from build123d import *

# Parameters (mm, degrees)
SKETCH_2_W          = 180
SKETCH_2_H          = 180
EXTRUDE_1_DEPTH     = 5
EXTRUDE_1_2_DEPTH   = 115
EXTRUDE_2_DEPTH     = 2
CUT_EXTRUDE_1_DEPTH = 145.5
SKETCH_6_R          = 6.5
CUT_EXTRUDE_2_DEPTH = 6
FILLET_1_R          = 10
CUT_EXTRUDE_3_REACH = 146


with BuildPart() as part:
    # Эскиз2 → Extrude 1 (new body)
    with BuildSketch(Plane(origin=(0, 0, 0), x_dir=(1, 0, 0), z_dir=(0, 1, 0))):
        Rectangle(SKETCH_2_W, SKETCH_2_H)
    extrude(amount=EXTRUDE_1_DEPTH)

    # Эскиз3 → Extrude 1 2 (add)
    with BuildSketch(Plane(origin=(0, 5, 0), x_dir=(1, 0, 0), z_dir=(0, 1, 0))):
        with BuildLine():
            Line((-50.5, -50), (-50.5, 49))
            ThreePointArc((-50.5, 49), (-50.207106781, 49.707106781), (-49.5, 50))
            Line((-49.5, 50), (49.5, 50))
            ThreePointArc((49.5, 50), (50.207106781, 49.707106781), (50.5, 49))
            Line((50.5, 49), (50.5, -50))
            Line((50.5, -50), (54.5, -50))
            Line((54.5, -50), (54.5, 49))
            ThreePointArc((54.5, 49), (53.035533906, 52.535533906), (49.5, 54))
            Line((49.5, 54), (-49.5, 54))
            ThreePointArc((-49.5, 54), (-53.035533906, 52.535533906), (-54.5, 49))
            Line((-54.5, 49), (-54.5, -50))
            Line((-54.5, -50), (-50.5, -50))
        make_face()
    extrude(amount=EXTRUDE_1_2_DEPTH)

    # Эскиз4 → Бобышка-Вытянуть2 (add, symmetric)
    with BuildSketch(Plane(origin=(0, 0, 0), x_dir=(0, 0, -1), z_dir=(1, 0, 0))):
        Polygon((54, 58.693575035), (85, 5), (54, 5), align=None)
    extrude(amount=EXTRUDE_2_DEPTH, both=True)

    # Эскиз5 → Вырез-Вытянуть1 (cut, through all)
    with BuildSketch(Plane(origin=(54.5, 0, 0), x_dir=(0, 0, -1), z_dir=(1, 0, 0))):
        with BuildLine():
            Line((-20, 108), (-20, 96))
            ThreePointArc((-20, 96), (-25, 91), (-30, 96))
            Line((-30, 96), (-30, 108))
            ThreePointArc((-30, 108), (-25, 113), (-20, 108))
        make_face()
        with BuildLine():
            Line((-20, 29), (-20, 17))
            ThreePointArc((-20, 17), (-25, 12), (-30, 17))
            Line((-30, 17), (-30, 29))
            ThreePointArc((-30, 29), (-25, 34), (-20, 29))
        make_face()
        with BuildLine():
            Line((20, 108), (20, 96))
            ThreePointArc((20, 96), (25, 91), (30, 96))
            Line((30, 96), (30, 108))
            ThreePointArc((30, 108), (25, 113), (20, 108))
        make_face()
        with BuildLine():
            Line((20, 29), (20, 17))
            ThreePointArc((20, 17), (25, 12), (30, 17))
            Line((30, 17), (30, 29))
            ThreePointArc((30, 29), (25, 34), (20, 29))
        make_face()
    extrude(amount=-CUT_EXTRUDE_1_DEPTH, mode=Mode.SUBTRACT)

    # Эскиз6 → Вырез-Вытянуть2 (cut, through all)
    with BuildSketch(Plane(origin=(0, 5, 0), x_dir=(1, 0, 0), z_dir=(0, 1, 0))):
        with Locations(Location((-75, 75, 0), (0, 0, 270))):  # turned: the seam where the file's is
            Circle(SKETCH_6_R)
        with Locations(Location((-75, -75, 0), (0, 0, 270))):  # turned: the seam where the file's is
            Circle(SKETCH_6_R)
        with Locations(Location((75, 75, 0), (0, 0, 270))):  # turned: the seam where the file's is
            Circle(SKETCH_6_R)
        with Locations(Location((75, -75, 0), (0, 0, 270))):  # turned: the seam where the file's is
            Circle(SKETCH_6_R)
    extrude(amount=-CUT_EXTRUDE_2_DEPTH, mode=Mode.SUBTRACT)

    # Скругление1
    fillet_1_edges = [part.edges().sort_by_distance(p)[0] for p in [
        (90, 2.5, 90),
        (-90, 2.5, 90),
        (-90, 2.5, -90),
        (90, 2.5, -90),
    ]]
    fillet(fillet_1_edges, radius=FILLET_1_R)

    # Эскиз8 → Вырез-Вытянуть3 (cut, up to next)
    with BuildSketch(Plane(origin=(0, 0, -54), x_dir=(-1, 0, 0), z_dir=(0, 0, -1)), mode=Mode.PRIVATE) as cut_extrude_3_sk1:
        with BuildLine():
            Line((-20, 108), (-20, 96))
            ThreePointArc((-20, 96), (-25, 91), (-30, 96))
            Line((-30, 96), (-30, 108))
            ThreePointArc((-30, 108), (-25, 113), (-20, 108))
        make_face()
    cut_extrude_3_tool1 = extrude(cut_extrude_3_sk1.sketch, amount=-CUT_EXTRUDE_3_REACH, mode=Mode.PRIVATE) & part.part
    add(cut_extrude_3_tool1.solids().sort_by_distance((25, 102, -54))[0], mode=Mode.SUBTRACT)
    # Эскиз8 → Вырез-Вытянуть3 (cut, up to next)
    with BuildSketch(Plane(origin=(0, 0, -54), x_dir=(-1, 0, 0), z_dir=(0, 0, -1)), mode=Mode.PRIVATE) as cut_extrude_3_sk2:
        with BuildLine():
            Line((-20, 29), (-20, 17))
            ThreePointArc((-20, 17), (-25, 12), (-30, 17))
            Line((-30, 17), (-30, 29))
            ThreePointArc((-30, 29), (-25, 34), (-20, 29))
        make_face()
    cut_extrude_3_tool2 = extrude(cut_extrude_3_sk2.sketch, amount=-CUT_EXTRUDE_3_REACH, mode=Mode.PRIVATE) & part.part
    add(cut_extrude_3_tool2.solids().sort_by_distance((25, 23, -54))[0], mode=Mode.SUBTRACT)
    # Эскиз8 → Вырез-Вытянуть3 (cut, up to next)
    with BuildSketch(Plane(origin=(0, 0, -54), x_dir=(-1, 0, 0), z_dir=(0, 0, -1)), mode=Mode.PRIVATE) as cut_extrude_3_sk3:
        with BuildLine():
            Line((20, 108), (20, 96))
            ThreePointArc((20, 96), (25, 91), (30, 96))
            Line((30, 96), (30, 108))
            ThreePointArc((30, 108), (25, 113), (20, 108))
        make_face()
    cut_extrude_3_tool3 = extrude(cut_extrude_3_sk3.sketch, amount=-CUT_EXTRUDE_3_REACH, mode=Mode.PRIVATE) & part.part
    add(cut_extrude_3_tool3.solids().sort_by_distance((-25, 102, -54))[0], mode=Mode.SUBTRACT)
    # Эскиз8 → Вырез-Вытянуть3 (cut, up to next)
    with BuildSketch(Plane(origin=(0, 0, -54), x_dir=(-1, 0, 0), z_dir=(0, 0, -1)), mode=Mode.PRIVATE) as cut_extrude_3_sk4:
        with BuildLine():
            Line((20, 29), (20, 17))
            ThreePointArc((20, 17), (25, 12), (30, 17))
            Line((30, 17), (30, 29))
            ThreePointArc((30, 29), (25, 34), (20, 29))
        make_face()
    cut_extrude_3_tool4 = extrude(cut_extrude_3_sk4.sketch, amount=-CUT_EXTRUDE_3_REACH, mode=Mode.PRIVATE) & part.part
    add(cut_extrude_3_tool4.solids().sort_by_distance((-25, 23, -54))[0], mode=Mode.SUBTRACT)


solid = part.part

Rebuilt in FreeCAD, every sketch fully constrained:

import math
import FreeCAD as App
import Part
import Sketcher
Q = App.Units.Quantity


def edges_at(feature, points):
    """Names of the edges that pass closest to the given points."""
    edges = feature.Shape.Edges
    near = lambda p: min(range(len(edges)), key=lambda i: edges[i].distToShape(Part.Vertex(*p))[0])
    return sorted({f"Edge{near(p) + 1}" for p in points})

doc = App.newDocument("Part")
body = doc.addObject("PartDesign::Body", "Body")

# Sketch on XZ plane
sketch1 = body.newObject("Sketcher::SketchObject", "Sketch")
sketch1.AttachmentSupport = (doc.getObject("XZ_Plane"), [""])
sketch1.MapMode = "FlatFace"
sketch1.addGeometry([
    Part.LineSegment(App.Vector(-90, -90, 0), App.Vector(-90, 90, 0)),
    Part.LineSegment(App.Vector(-90, 90, 0), App.Vector(90, 90, 0)),
    Part.LineSegment(App.Vector(90, 90, 0), App.Vector(90, -90, 0)),
    Part.LineSegment(App.Vector(90, -90, 0), App.Vector(-90, -90, 0)),
], False)
sketch1.addConstraint([
    Sketcher.Constraint("Coincident", 0, 2, 1, 1),
    Sketcher.Constraint("Coincident", 1, 2, 2, 1),
    Sketcher.Constraint("Coincident", 2, 2, 3, 1),
    Sketcher.Constraint("Coincident", 3, 2, 0, 1),
    Sketcher.Constraint("Vertical", 0),
    Sketcher.Constraint("Horizontal", 1),
    Sketcher.Constraint("Vertical", 2),
    Sketcher.Constraint("Horizontal", 3),
    Sketcher.Constraint("Symmetric", 0, 2, 2, 2, -1, 1),
    Sketcher.Constraint("Equal", 3, 0),
    Sketcher.Constraint("DistanceX", 1, 1, 1, 2, 180.0),
])
pad1 = body.newObject("PartDesign::Pad", "Pad")
pad1.Profile = sketch1
pad1.Length = 5
pad1.Reversed = True

# Sketch on XZ plane
sketch2 = body.newObject("Sketcher::SketchObject", "Sketch001")
sketch2.AttachmentSupport = (doc.getObject("XZ_Plane"), [""])
sketch2.MapMode = "FlatFace"
sketch2.AttachmentOffset = App.Placement(App.Vector(0, 0, -5), App.Rotation())
sketch2.addGeometry([
    Part.LineSegment(App.Vector(-50.5, 50, 0), App.Vector(-50.5, -49, 0)),  # 0
    Part.ArcOfCircle(Part.Circle(App.Vector(-49.5, -49, 0), App.Vector(0, 0, 1), 1), math.radians(-180), math.radians(-90)),  # 1
    Part.LineSegment(App.Vector(-49.5, -50, 0), App.Vector(49.5, -50, 0)),  # 2
    Part.ArcOfCircle(Part.Circle(App.Vector(49.5, -49, 0), App.Vector(0, 0, 1), 1), math.radians(-90), math.radians(0)),  # 3
    Part.LineSegment(App.Vector(50.5, -49, 0), App.Vector(50.5, 50, 0)),  # 4
    Part.LineSegment(App.Vector(50.5, 50, 0), App.Vector(54.5, 50, 0)),  # 5
    Part.LineSegment(App.Vector(54.5, 50, 0), App.Vector(54.5, -49, 0)),  # 6
    Part.ArcOfCircle(Part.Circle(App.Vector(49.5, -49, 0), App.Vector(0, 0, 1), 5), math.radians(-90), math.radians(0)),  # 7
    Part.LineSegment(App.Vector(49.5, -54, 0), App.Vector(-49.5, -54, 0)),  # 8
    Part.ArcOfCircle(Part.Circle(App.Vector(-49.5, -49, 0), App.Vector(0, 0, 1), 5), math.radians(180), math.radians(270)),  # 9
    Part.LineSegment(App.Vector(-54.5, -49, 0), App.Vector(-54.5, 50, 0)),  # 10
    Part.LineSegment(App.Vector(-54.5, 50, 0), App.Vector(-50.5, 50, 0)),  # 11
], False)
sketch2.addConstraint([
    Sketcher.Constraint("Tangent", 0, 2, 1, 1),
    Sketcher.Constraint("Tangent", 1, 2, 2, 1),
    Sketcher.Constraint("Tangent", 2, 2, 3, 1),
    Sketcher.Constraint("Tangent", 3, 2, 4, 1),
    Sketcher.Constraint("Coincident", 4, 2, 5, 1),
    Sketcher.Constraint("Coincident", 5, 2, 6, 1),
    Sketcher.Constraint("Tangent", 6, 2, 7, 2),
    Sketcher.Constraint("Tangent", 7, 1, 8, 1),
    Sketcher.Constraint("Tangent", 8, 2, 9, 2),
    Sketcher.Constraint("Tangent", 9, 1, 10, 1),
    Sketcher.Constraint("Coincident", 10, 2, 11, 1),
    Sketcher.Constraint("Coincident", 11, 2, 0, 1),
    Sketcher.Constraint("Vertical", 0),
    Sketcher.Constraint("Horizontal", 2),
    Sketcher.Constraint("Vertical", 4),
    Sketcher.Constraint("Horizontal", 5),
    Sketcher.Constraint("Vertical", 6),
    Sketcher.Constraint("Horizontal", 8),
    Sketcher.Constraint("Vertical", 10),
    Sketcher.Constraint("Horizontal", 11),
    Sketcher.Constraint("Coincident", 7, 3, 3, 3),
    Sketcher.Constraint("Coincident", 9, 3, 1, 3),
    Sketcher.Constraint("Equal", 1, 3),
    Sketcher.Constraint("Symmetric", 5, 2, 10, 2, -2),
    Sketcher.Constraint("Equal", 8, 0),
    Sketcher.Constraint("Radius", 1, 1.0),
    Sketcher.Constraint("Radius", 7, 5.0),
    Sketcher.Constraint("DistanceX", 2, 1, 2, 2, 99.0),
    Sketcher.Constraint("DistanceY", 1, 3, -1, 1, 49.0),
])
pad2 = body.newObject("PartDesign::Pad", "Pad001")
pad2.Profile = sketch2
pad2.Length = 115
pad2.Reversed = True

# Sketch on YZ plane
sketch3 = body.newObject("Sketcher::SketchObject", "Sketch002")
sketch3.AttachmentSupport = (doc.getObject("YZ_Plane"), [""])
sketch3.MapMode = "FlatFace"
sketch3.addGeometry([
    Part.LineSegment(App.Vector(5, -85, 0), App.Vector(59, -54, 0)),
    Part.LineSegment(App.Vector(59, -54, 0), App.Vector(5, -54, 0)),
    Part.LineSegment(App.Vector(5, -54, 0), App.Vector(5, -85, 0)),
], False)
sketch3.addConstraint([
    Sketcher.Constraint("Coincident", 0, 2, 1, 1),
    Sketcher.Constraint("Coincident", 1, 2, 2, 1),
    Sketcher.Constraint("Coincident", 2, 2, 0, 1),
    Sketcher.Constraint("Horizontal", 1),
    Sketcher.Constraint("Vertical", 2),
    Sketcher.Constraint("DistanceY", 2, 2, 2, 1, 31.0),
    Sketcher.Constraint("Angle", 0, Q("30 deg")),
    Sketcher.Constraint("DistanceY", 0, 2, -1, 1, 54.0),
    Sketcher.Constraint("DistanceX", -1, 1, 1, 2, 5.0),
])
pad3 = body.newObject("PartDesign::Pad", "Pad002")
pad3.Profile = sketch3
pad3.Length = 4
pad3.Midplane = True

# Sketch on YZ plane
sketch4 = body.newObject("Sketcher::SketchObject", "Sketch003")
sketch4.AttachmentSupport = (doc.getObject("YZ_Plane"), [""])
sketch4.MapMode = "FlatFace"
sketch4.AttachmentOffset = App.Placement(App.Vector(0, 0, 54.5), App.Rotation())
sketch4.addGeometry([
    Part.LineSegment(App.Vector(96, 20, 0), App.Vector(108, 20, 0)),  # 0
    Part.ArcOfCircle(Part.Circle(App.Vector(108, 25, 0), App.Vector(0, 0, 1), 5), math.radians(-90), math.radians(90)),  # 1
    Part.LineSegment(App.Vector(108, 30, 0), App.Vector(96, 30, 0)),  # 2
    Part.ArcOfCircle(Part.Circle(App.Vector(96, 25, 0), App.Vector(0, 0, 1), 5), math.radians(90), math.radians(270)),  # 3
    Part.LineSegment(App.Vector(17, 20, 0), App.Vector(29, 20, 0)),  # 4
    Part.ArcOfCircle(Part.Circle(App.Vector(29, 25, 0), App.Vector(0, 0, 1), 5), math.radians(-90), math.radians(90)),  # 5
    Part.LineSegment(App.Vector(29, 30, 0), App.Vector(17, 30, 0)),  # 6
    Part.ArcOfCircle(Part.Circle(App.Vector(17, 25, 0), App.Vector(0, 0, 1), 5), math.radians(90), math.radians(270)),  # 7
    Part.LineSegment(App.Vector(108, -20, 0), App.Vector(96, -20, 0)),  # 8
    Part.ArcOfCircle(Part.Circle(App.Vector(96, -25, 0), App.Vector(0, 0, 1), 5), math.radians(90), math.radians(270)),  # 9
    Part.LineSegment(App.Vector(96, -30, 0), App.Vector(108, -30, 0)),  # 10
    Part.ArcOfCircle(Part.Circle(App.Vector(108, -25, 0), App.Vector(0, 0, 1), 5), math.radians(-90), math.radians(90)),  # 11
    Part.LineSegment(App.Vector(29, -20, 0), App.Vector(17, -20, 0)),  # 12
    Part.ArcOfCircle(Part.Circle(App.Vector(17, -25, 0), App.Vector(0, 0, 1), 5), math.radians(90), math.radians(270)),  # 13
    Part.LineSegment(App.Vector(17, -30, 0), App.Vector(29, -30, 0)),  # 14
    Part.ArcOfCircle(Part.Circle(App.Vector(29, -25, 0), App.Vector(0, 0, 1), 5), math.radians(-90), math.radians(90)),  # 15
], False)
sketch4.addConstraint([
    Sketcher.Constraint("Tangent", 0, 2, 1, 1),
    Sketcher.Constraint("Tangent", 1, 2, 2, 1),
    Sketcher.Constraint("Tangent", 2, 2, 3, 1),
    Sketcher.Constraint("Tangent", 3, 2, 0, 1),
    Sketcher.Constraint("Tangent", 4, 2, 5, 1),
    Sketcher.Constraint("Tangent", 5, 2, 6, 1),
    Sketcher.Constraint("Tangent", 6, 2, 7, 1),
    Sketcher.Constraint("Tangent", 7, 2, 4, 1),
    Sketcher.Constraint("Tangent", 8, 2, 9, 1),
    Sketcher.Constraint("Tangent", 9, 2, 10, 1),
    Sketcher.Constraint("Tangent", 10, 2, 11, 1),
    Sketcher.Constraint("Tangent", 11, 2, 8, 1),
    Sketcher.Constraint("Tangent", 12, 2, 13, 1),
    Sketcher.Constraint("Tangent", 13, 2, 14, 1),
    Sketcher.Constraint("Tangent", 14, 2, 15, 1),
    Sketcher.Constraint("Tangent", 15, 2, 12, 1),
    Sketcher.Constraint("Horizontal", 0),
    Sketcher.Constraint("Horizontal", 2),
    Sketcher.Constraint("Horizontal", 4),
    Sketcher.Constraint("Horizontal", 6),
    Sketcher.Constraint("Horizontal", 8),
    Sketcher.Constraint("Horizontal", 10),
    Sketcher.Constraint("Horizontal", 12),
    Sketcher.Constraint("Horizontal", 14),
    Sketcher.Constraint("Equal", 3, 5),
    Sketcher.Constraint("Equal", 7, 9),
    Sketcher.Constraint("Equal", 11, 13),
    Sketcher.Constraint("Symmetric", 3, 3, 9, 3, -1),
    Sketcher.Constraint("Symmetric", 7, 3, 13, 3, -1),
    Sketcher.Constraint("Horizontal", 3, 3, 5, 3),
    Sketcher.Constraint("Vertical", 1, 3, 11, 3),
    Sketcher.Constraint("Vertical", 5, 3, 15, 3),
    Sketcher.Constraint("Equal", 2, 4),
    Sketcher.Constraint("Radius", 1, 5.0),
    Sketcher.Constraint("DistanceX", 0, 1, 0, 2, 12.0),
    Sketcher.Constraint("DistanceX", -1, 1, 1, 3, 108.0),
    Sketcher.Constraint("DistanceY", -1, 1, 1, 3, 25.0),
    Sketcher.Constraint("DistanceX", -1, 1, 5, 3, 29.0),
])
pocket1 = body.newObject("PartDesign::Pocket", "Pocket")
pocket1.Profile = sketch4
pocket1.Type = "ThroughAll"

# Sketch on XZ plane
sketch5 = body.newObject("Sketcher::SketchObject", "Sketch004")
sketch5.AttachmentSupport = (doc.getObject("XZ_Plane"), [""])
sketch5.MapMode = "FlatFace"
sketch5.AttachmentOffset = App.Placement(App.Vector(0, 0, -5), App.Rotation())
sketch5.addGeometry([
    Part.Circle(App.Vector(-75, -75, 0), App.Vector(0, 0, 1), 6),
    Part.Circle(App.Vector(-75, 75, 0), App.Vector(0, 0, 1), 6),
    Part.Circle(App.Vector(75, -75, 0), App.Vector(0, 0, 1), 6),
    Part.Circle(App.Vector(75, 75, 0), App.Vector(0, 0, 1), 6),
], False)
sketch5.addConstraint([
    Sketcher.Constraint("Equal", 0, 1),
    Sketcher.Constraint("Equal", 1, 2),
    Sketcher.Constraint("Equal", 2, 3),
    Sketcher.Constraint("Symmetric", 1, 3, 2, 3, -1, 1),
    Sketcher.Constraint("Symmetric", 0, 3, 3, 3, -1, 1),
    Sketcher.Constraint("Symmetric", 0, 3, 2, 3, -2),
    Sketcher.Constraint("Diameter", 0, 13.0),
    Sketcher.Constraint("DistanceX", 0, 3, -1, 1, 75.0),
    Sketcher.Constraint("DistanceY", 0, 3, -1, 1, 75.0),
])
pocket2 = body.newObject("PartDesign::Pocket", "Pocket001")
pocket2.Profile = sketch5
pocket2.Type = "ThroughAll"
pocket2.Reversed = True
doc.recompute()

fillet = body.newObject("PartDesign::Fillet", "Fillet")
fillet.Base = (pocket2, edges_at(pocket2, [
    (90, 2.5, 90),
    (-90, 2.5, 90),
    (-90, 2.5, -90),
    (90, 2.5, -90),
]))
fillet.Radius = 10

# Sketch on XY plane
sketch6 = body.newObject("Sketcher::SketchObject", "Sketch005")
sketch6.AttachmentSupport = (doc.getObject("XY_Plane"), [""])
sketch6.MapMode = "FlatFace"
sketch6.AttachmentOffset = App.Placement(App.Vector(0, 0, -54), App.Rotation())
sketch6.addGeometry([
    Part.LineSegment(App.Vector(20, 96, 0), App.Vector(20, 108, 0)),
    Part.ArcOfCircle(Part.Circle(App.Vector(25, 108, 0), App.Vector(0, 0, 1), 5), math.radians(0), math.radians(180)),
    Part.LineSegment(App.Vector(30, 108, 0), App.Vector(30, 96, 0)),
    Part.ArcOfCircle(Part.Circle(App.Vector(25, 96, 0), App.Vector(0, 0, 1), 5), math.radians(180), math.radians(360)),
], False)
sketch6.addConstraint([
    Sketcher.Constraint("Tangent", 0, 2, 1, 2),
    Sketcher.Constraint("Tangent", 1, 1, 2, 1),
    Sketcher.Constraint("Tangent", 2, 2, 3, 2),
    Sketcher.Constraint("Tangent", 3, 1, 0, 1),
    Sketcher.Constraint("Vertical", 0),
    Sketcher.Constraint("Vertical", 2),
    Sketcher.Constraint("Radius", 1, 5.0),
    Sketcher.Constraint("DistanceY", 0, 1, 0, 2, 12.0),
    Sketcher.Constraint("DistanceX", -1, 1, 1, 3, 25.0),
    Sketcher.Constraint("DistanceY", -1, 1, 1, 3, 108.0),
])
pocket3 = body.newObject("PartDesign::Pocket", "Pocket002")
pocket3.Profile = sketch6
pocket3.Type = "UpToFirst"
pocket3.Reversed = True

# Sketch on XY plane
sketch7 = body.newObject("Sketcher::SketchObject", "Sketch006")
sketch7.AttachmentSupport = (doc.getObject("XY_Plane"), [""])
sketch7.MapMode = "FlatFace"
sketch7.AttachmentOffset = App.Placement(App.Vector(0, 0, -54), App.Rotation())
sketch7.addGeometry([
    Part.LineSegment(App.Vector(20, 17, 0), App.Vector(20, 29, 0)),
    Part.ArcOfCircle(Part.Circle(App.Vector(25, 29, 0), App.Vector(0, 0, 1), 5), math.radians(0), math.radians(180)),
    Part.LineSegment(App.Vector(30, 29, 0), App.Vector(30, 17, 0)),
    Part.ArcOfCircle(Part.Circle(App.Vector(25, 17, 0), App.Vector(0, 0, 1), 5), math.radians(180), math.radians(360)),
], False)
sketch7.addConstraint([
    Sketcher.Constraint("Tangent", 0, 2, 1, 2),
    Sketcher.Constraint("Tangent", 1, 1, 2, 1),
    Sketcher.Constraint("Tangent", 2, 2, 3, 2),
    Sketcher.Constraint("Tangent", 3, 1, 0, 1),
    Sketcher.Constraint("Vertical", 0),
    Sketcher.Constraint("Vertical", 2),
    Sketcher.Constraint("Radius", 1, 5.0),
    Sketcher.Constraint("DistanceY", 0, 1, 0, 2, 12.0),
    Sketcher.Constraint("DistanceX", -1, 1, 1, 3, 25.0),
    Sketcher.Constraint("DistanceY", -1, 1, 1, 3, 29.0),
])
pocket4 = body.newObject("PartDesign::Pocket", "Pocket003")
pocket4.Profile = sketch7
pocket4.Type = "UpToFirst"
pocket4.Reversed = True

# Sketch on XY plane
sketch8 = body.newObject("Sketcher::SketchObject", "Sketch007")
sketch8.AttachmentSupport = (doc.getObject("XY_Plane"), [""])
sketch8.MapMode = "FlatFace"
sketch8.AttachmentOffset = App.Placement(App.Vector(0, 0, -54), App.Rotation())
sketch8.addGeometry([
    Part.LineSegment(App.Vector(-20, 108, 0), App.Vector(-20, 96, 0)),
    Part.ArcOfCircle(Part.Circle(App.Vector(-25, 96, 0), App.Vector(0, 0, 1), 5), math.radians(180), math.radians(360)),
    Part.LineSegment(App.Vector(-30, 96, 0), App.Vector(-30, 108, 0)),
    Part.ArcOfCircle(Part.Circle(App.Vector(-25, 108, 0), App.Vector(0, 0, 1), 5), math.radians(0), math.radians(180)),
], False)
sketch8.addConstraint([
    Sketcher.Constraint("Tangent", 0, 2, 1, 2),
    Sketcher.Constraint("Tangent", 1, 1, 2, 1),
    Sketcher.Constraint("Tangent", 2, 2, 3, 2),
    Sketcher.Constraint("Tangent", 3, 1, 0, 1),
    Sketcher.Constraint("Vertical", 0),
    Sketcher.Constraint("Vertical", 2),
    Sketcher.Constraint("Radius", 1, 5.0),
    Sketcher.Constraint("DistanceY", 0, 2, 0, 1, 12.0),
    Sketcher.Constraint("DistanceX", 1, 3, -1, 1, 25.0),
    Sketcher.Constraint("DistanceY", -1, 1, 1, 3, 96.0),
])
pocket5 = body.newObject("PartDesign::Pocket", "Pocket004")
pocket5.Profile = sketch8
pocket5.Type = "UpToFirst"
pocket5.Reversed = True

# Sketch on XY plane
sketch9 = body.newObject("Sketcher::SketchObject", "Sketch008")
sketch9.AttachmentSupport = (doc.getObject("XY_Plane"), [""])
sketch9.MapMode = "FlatFace"
sketch9.AttachmentOffset = App.Placement(App.Vector(0, 0, -54), App.Rotation())
sketch9.addGeometry([
    Part.LineSegment(App.Vector(-20, 29, 0), App.Vector(-20, 17, 0)),
    Part.ArcOfCircle(Part.Circle(App.Vector(-25, 17, 0), App.Vector(0, 0, 1), 5), math.radians(180), math.radians(360)),
    Part.LineSegment(App.Vector(-30, 17, 0), App.Vector(-30, 29, 0)),
    Part.ArcOfCircle(Part.Circle(App.Vector(-25, 29, 0), App.Vector(0, 0, 1), 5), math.radians(0), math.radians(180)),
], False)
sketch9.addConstraint([
    Sketcher.Constraint("Tangent", 0, 2, 1, 2),
    Sketcher.Constraint("Tangent", 1, 1, 2, 1),
    Sketcher.Constraint("Tangent", 2, 2, 3, 2),
    Sketcher.Constraint("Tangent", 3, 1, 0, 1),
    Sketcher.Constraint("Vertical", 0),
    Sketcher.Constraint("Vertical", 2),
    Sketcher.Constraint("Radius", 1, 5.0),
    Sketcher.Constraint("DistanceY", 0, 2, 0, 1, 12.0),
    Sketcher.Constraint("DistanceX", 1, 3, -1, 1, 25.0),
    Sketcher.Constraint("DistanceY", -1, 1, 1, 3, 17.0),
])
pocket6 = body.newObject("PartDesign::Pocket", "Pocket005")
pocket6.Profile = sketch9
pocket6.Type = "UpToFirst"
pocket6.Reversed = True

doc.recompute()
